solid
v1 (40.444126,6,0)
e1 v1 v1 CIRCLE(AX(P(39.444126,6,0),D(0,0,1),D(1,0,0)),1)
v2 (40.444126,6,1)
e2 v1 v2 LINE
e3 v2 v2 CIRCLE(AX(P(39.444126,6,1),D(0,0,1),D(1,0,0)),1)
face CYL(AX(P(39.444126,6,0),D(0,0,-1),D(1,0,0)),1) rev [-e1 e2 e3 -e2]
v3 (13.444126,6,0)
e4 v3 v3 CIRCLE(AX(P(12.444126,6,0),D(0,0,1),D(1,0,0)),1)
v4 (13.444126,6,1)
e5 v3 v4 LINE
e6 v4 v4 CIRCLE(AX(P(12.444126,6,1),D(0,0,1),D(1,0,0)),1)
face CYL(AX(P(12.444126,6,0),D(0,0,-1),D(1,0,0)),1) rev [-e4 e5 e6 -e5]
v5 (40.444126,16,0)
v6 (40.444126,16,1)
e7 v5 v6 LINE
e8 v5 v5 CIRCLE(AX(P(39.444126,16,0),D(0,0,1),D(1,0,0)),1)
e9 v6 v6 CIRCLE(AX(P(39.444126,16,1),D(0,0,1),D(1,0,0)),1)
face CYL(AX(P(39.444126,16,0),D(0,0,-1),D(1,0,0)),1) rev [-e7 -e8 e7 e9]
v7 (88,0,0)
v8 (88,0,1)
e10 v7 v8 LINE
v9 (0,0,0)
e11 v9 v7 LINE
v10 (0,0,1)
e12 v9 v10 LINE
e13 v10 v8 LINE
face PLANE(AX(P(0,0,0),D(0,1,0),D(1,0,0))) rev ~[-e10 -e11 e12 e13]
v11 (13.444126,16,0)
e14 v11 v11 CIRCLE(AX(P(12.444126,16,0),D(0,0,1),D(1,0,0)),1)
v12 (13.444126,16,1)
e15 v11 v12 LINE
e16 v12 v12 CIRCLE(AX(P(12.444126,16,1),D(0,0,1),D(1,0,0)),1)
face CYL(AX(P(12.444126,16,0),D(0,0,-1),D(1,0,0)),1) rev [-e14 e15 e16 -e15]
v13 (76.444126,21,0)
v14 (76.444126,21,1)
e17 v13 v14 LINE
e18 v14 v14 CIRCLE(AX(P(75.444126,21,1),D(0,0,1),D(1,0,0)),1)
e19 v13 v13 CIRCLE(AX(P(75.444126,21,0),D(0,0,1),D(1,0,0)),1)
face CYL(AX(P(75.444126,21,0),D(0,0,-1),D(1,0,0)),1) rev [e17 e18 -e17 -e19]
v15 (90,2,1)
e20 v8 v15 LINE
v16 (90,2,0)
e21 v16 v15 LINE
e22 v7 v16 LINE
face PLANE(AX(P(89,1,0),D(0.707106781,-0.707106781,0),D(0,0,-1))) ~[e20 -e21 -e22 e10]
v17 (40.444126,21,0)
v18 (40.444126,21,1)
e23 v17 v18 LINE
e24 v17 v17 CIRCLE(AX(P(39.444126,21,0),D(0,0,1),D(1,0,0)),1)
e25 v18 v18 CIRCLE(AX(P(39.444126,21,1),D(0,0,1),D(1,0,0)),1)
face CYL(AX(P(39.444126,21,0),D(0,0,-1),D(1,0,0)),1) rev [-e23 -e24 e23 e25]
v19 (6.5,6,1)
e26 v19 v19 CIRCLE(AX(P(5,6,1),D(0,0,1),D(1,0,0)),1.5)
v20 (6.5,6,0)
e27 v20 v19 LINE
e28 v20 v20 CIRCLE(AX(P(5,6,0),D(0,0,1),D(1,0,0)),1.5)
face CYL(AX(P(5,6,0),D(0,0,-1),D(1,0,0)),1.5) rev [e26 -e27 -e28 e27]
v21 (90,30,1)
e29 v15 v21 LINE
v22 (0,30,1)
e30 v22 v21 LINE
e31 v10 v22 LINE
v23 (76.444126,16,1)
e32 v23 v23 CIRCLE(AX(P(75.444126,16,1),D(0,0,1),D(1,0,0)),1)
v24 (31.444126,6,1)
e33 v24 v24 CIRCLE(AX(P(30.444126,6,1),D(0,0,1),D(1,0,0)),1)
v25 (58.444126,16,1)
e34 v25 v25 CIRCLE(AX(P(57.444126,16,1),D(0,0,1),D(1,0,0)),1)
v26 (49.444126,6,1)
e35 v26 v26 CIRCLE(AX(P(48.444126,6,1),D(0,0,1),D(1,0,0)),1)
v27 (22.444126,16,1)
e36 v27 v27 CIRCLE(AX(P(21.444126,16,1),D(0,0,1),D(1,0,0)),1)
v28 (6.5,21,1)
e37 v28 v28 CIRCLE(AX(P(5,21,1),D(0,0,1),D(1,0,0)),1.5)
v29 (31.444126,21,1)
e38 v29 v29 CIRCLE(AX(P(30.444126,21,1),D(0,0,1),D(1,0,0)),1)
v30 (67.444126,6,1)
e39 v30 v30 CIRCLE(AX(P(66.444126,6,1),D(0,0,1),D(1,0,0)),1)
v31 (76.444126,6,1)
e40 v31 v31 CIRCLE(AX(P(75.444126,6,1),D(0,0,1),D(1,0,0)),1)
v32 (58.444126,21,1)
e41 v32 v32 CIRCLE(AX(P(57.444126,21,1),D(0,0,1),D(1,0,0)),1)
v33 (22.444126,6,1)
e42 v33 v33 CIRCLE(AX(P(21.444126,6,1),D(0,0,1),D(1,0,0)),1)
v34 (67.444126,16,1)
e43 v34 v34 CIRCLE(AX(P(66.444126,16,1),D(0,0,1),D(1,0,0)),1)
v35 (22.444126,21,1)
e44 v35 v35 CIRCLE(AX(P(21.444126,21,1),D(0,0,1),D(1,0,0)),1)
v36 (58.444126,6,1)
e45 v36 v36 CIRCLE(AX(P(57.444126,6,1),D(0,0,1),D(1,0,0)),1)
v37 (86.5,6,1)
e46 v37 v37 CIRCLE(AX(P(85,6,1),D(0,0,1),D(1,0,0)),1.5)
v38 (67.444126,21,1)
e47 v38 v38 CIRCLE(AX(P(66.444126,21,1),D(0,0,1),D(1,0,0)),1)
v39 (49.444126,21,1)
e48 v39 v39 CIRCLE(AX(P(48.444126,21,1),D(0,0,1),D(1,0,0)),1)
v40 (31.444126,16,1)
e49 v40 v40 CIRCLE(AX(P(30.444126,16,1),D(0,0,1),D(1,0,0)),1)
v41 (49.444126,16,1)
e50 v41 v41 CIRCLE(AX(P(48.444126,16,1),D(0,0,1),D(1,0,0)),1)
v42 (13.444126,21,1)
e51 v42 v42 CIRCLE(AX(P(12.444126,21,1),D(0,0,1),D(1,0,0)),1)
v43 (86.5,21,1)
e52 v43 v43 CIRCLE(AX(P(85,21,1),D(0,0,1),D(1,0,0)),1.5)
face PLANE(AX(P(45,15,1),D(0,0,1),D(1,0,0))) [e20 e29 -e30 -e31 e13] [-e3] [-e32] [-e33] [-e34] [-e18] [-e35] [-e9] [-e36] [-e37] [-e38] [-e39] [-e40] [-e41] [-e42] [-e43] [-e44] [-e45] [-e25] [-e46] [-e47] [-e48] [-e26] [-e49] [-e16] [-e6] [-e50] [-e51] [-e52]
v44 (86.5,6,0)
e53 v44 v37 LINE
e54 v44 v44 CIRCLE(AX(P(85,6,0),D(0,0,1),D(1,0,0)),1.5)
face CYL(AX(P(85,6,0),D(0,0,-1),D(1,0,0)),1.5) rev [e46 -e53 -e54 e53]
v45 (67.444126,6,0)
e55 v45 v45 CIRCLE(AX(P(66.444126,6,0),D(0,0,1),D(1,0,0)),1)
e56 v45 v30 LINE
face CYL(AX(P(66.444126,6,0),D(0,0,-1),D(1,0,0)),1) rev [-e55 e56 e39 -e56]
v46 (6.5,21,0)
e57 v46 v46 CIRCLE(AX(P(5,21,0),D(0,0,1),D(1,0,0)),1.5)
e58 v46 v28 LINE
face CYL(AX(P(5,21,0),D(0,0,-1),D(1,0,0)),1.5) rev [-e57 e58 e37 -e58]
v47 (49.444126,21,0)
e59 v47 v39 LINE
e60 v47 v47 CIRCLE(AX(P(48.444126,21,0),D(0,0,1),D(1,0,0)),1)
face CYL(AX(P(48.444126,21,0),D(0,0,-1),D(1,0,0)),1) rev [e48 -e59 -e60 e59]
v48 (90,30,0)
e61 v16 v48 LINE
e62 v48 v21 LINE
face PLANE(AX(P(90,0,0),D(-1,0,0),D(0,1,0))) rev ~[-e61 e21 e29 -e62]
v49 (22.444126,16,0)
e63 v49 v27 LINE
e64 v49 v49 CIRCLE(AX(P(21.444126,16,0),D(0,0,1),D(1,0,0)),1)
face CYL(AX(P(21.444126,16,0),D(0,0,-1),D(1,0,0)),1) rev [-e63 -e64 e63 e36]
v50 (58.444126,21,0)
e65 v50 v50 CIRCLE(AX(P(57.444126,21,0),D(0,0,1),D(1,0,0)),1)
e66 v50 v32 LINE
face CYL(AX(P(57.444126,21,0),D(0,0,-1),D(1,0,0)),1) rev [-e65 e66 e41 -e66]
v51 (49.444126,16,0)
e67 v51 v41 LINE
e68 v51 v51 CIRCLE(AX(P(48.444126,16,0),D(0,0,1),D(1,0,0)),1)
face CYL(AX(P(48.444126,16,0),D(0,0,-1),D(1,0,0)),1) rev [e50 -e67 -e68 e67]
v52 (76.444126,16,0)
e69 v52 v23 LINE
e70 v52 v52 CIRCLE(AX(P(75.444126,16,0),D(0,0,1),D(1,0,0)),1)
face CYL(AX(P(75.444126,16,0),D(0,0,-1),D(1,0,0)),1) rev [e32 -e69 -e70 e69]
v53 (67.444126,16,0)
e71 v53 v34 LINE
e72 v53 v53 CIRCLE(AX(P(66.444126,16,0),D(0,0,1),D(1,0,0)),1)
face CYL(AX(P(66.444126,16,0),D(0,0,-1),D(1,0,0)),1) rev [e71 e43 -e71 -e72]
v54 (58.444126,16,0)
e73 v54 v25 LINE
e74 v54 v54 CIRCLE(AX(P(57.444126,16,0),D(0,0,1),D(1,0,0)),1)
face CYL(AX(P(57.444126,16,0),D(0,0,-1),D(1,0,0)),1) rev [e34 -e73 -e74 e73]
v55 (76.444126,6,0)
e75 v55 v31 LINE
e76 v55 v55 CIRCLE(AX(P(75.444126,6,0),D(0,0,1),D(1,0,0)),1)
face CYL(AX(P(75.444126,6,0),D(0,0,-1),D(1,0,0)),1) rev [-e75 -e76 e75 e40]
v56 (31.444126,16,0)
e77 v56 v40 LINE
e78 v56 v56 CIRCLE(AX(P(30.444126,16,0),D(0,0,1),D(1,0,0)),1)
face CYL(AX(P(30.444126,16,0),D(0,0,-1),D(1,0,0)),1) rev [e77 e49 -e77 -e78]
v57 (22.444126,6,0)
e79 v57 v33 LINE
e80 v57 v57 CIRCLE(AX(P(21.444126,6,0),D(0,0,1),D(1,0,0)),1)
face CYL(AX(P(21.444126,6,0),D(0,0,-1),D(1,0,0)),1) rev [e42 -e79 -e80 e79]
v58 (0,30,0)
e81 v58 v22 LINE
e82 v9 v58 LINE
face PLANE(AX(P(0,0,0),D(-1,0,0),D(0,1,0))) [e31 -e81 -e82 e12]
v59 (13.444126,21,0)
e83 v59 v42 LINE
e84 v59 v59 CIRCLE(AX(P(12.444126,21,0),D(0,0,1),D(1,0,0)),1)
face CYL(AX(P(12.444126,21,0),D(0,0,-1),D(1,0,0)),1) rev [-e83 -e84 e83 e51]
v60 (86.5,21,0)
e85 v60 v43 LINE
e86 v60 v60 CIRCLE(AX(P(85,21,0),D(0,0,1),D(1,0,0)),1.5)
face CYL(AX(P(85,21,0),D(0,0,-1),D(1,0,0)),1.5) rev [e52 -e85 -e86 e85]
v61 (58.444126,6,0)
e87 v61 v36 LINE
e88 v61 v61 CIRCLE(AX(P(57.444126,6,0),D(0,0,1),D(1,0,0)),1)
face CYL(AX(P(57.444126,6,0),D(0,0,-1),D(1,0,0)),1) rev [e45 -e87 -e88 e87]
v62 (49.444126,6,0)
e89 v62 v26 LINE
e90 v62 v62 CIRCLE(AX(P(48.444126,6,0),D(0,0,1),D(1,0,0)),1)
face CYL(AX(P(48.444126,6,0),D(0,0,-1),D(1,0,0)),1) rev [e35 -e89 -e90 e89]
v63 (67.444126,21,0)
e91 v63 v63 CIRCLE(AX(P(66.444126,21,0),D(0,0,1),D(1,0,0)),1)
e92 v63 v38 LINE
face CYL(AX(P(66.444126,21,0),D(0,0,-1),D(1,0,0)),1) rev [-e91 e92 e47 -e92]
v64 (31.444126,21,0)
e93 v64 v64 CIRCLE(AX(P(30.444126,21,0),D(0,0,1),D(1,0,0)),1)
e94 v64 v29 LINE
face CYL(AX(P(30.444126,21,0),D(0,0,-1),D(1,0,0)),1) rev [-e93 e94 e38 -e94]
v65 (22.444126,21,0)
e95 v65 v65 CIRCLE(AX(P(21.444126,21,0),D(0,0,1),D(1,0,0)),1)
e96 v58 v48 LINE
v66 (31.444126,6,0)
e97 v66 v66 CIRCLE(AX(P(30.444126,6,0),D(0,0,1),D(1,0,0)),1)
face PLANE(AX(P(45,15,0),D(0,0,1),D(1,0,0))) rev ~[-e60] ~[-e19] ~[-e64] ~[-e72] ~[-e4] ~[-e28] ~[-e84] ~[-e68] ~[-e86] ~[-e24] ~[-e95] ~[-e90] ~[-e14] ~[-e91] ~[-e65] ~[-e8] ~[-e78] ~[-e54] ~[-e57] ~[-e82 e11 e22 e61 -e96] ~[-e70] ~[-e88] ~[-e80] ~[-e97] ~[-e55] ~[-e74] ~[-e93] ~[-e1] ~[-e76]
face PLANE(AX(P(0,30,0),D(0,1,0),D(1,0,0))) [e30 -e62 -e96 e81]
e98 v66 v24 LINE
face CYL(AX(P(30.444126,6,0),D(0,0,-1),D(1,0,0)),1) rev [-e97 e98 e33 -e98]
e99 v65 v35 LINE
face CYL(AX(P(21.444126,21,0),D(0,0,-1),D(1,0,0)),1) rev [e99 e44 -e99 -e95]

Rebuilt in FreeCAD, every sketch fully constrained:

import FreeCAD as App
import Part
import Sketcher

V = App.Vector
Q = App.Units.Quantity


def edges_at(feature, points):
    """Names of the edges that pass closest to the given points."""
    edges = feature.Shape.Edges
    near = lambda p: min(range(len(edges)), key=lambda i: edges[i].distToShape(Part.Vertex(*p))[0])
    return sorted({f"Edge{near(p) + 1}" for p in points})

doc = App.newDocument("Part")
body = doc.addObject("PartDesign::Body", "Body")

sketch1 = body.newObject("Sketcher::SketchObject", "Sketch")
sketch1.AttachmentSupport = (doc.getObject("XY_Plane"), [""])
sketch1.MapMode = "FlatFace"
sketch1.addGeometry(Part.LineSegment(V(0, 30, 0), V(0, 0, 0)), False)
sketch1.addGeometry(Part.LineSegment(V(0, 0, 0), V(90, 0, 0)), False)
sketch1.addGeometry(Part.LineSegment(V(90, 0, 0), V(90, 30, 0)), False)
sketch1.addGeometry(Part.LineSegment(V(90, 30, 0), V(0, 30, 0)), False)
sketch1.addConstraint(Sketcher.Constraint("Coincident", 0, 2, 1, 1))
sketch1.addConstraint(Sketcher.Constraint("Coincident", 1, 2, 2, 1))
sketch1.addConstraint(Sketcher.Constraint("Coincident", 2, 2, 3, 1))
sketch1.addConstraint(Sketcher.Constraint("Coincident", 3, 2, 0, 1))
sketch1.addConstraint(Sketcher.Constraint("Vertical", 0))
sketch1.addConstraint(Sketcher.Constraint("Horizontal", 1))
sketch1.addConstraint(Sketcher.Constraint("Vertical", 2))
sketch1.addConstraint(Sketcher.Constraint("Horizontal", 3))
sketch1.addConstraint(Sketcher.Constraint("Coincident", 0, 2, -1, 1))
sketch1.addConstraint(Sketcher.Constraint("DistanceX", 1, 1, 1, 2, Q("90 mm")))
sketch1.addConstraint(Sketcher.Constraint("DistanceY", 0, 2, 0, 1, Q("30 mm")))
pad1 = body.newObject("PartDesign::Pad", "Pad")
pad1.Profile = sketch1
pad1.Length = 1

sketch2 = body.newObject("Sketcher::SketchObject", "Sketch001")
sketch2.AttachmentSupport = (doc.getObject("XY_Plane"), [""])
sketch2.MapMode = "FlatFace"
sketch2.addGeometry(Part.Circle(V(12.444126, 6, 0), V(0, 0, 1), 1), False)
sketch2.addGeometry(Part.Circle(V(12.444126, 21, 0), V(0, 0, 1), 1), False)
sketch2.addGeometry(Part.Circle(V(12.444126, 16, 0), V(0, 0, 1), 1), False)
sketch2.addGeometry(Part.Circle(V(21.444126, 21, 0), V(0, 0, 1), 1), False)
sketch2.addGeometry(Part.Circle(V(21.444126, 16, 0), V(0, 0, 1), 1), False)
sketch2.addGeometry(Part.Circle(V(21.444126, 6, 0), V(0, 0, 1), 1), False)
sketch2.addGeometry(Part.Circle(V(30.444126, 21, 0), V(0, 0, 1), 1), False)
sketch2.addGeometry(Part.Circle(V(30.444126, 16, 0), V(0, 0, 1), 1), False)
sketch2.addGeometry(Part.Circle(V(30.444126, 6, 0), V(0, 0, 1), 1), False)
sketch2.addGeometry(Part.Circle(V(39.444126, 21, 0), V(0, 0, 1), 1), False)
sketch2.addGeometry(Part.Circle(V(39.444126, 16, 0), V(0, 0, 1), 1), False)
sketch2.addGeometry(Part.Circle(V(39.444126, 6, 0), V(0, 0, 1), 1), False)
sketch2.addGeometry(Part.Circle(V(48.444126, 21, 0), V(0, 0, 1), 1), False)
sketch2.addGeometry(Part.Circle(V(48.444126, 16, 0), V(0, 0, 1), 1), False)
sketch2.addGeometry(Part.Circle(V(48.444126, 6, 0), V(0, 0, 1), 1), False)
sketch2.addGeometry(Part.Circle(V(57.444126, 21, 0), V(0, 0, 1), 1), False)
sketch2.addGeometry(Part.Circle(V(57.444126, 16, 0), V(0, 0, 1), 1), False)
sketch2.addGeometry(Part.Circle(V(57.444126, 6, 0), V(0, 0, 1), 1), False)
sketch2.addGeometry(Part.Circle(V(66.444126, 21, 0), V(0, 0, 1), 1), False)
sketch2.addGeometry(Part.Circle(V(66.444126, 16, 0), V(0, 0, 1), 1), False)
sketch2.addGeometry(Part.Circle(V(66.444126, 6, 0), V(0, 0, 1), 1), False)
sketch2.addGeometry(Part.Circle(V(75.444126, 21, 0), V(0, 0, 1), 1), False)
sketch2.addGeometry(Part.Circle(V(75.444126, 16, 0), V(0, 0, 1), 1), False)
sketch2.addGeometry(Part.Circle(V(75.444126, 6, 0), V(0, 0, 1), 1), False)
sketch2.addConstraint(Sketcher.Constraint("Equal", 0, 1))
sketch2.addConstraint(Sketcher.Constraint("Equal", 1, 2))
sketch2.addConstraint(Sketcher.Constraint("Equal", 2, 3))
sketch2.addConstraint(Sketcher.Constraint("Equal", 3, 4))
sketch2.addConstraint(Sketcher.Constraint("Equal", 4, 5))
sketch2.addConstraint(Sketcher.Constraint("Equal", 5, 6))
sketch2.addConstraint(Sketcher.Constraint("Equal", 6, 7))
sketch2.addConstraint(Sketcher.Constraint("Equal", 7, 8))
sketch2.addConstraint(Sketcher.Constraint("Equal", 8, 9))
sketch2.addConstraint(Sketcher.Constraint("Equal", 9, 10))
sketch2.addConstraint(Sketcher.Constraint("Equal", 10, 11))
sketch2.addConstraint(Sketcher.Constraint("Equal", 11, 12))
sketch2.addConstraint(Sketcher.Constraint("Equal", 12, 13))
sketch2.addConstraint(Sketcher.Constraint("Equal", 13, 14))
sketch2.addConstraint(Sketcher.Constraint("Equal", 14, 15))
sketch2.addConstraint(Sketcher.Constraint("Equal", 15, 16))
sketch2.addConstraint(Sketcher.Constraint("Equal", 16, 17))
sketch2.addConstraint(Sketcher.Constraint("Equal", 17, 18))
sketch2.addConstraint(Sketcher.Constraint("Equal", 18, 19))
sketch2.addConstraint(Sketcher.Constraint("Equal", 19, 20))
sketch2.addConstraint(Sketcher.Constraint("Equal", 20, 21))
sketch2.addConstraint(Sketcher.Constraint("Equal", 21, 22))
sketch2.addConstraint(Sketcher.Constraint("Equal", 22, 23))
sketch2.addConstraint(Sketcher.Constraint("Horizontal", 1, 3, 3, 3))
sketch2.addConstraint(Sketcher.Constraint("Horizontal", 2, 3, 4, 3))
sketch2.addConstraint(Sketcher.Constraint("Horizontal", 0, 3, 5, 3))
sketch2.addConstraint(Sketcher.Constraint("Horizontal", 3, 3, 6, 3))
sketch2.addConstraint(Sketcher.Constraint("Horizontal", 4, 3, 7, 3))
sketch2.addConstraint(Sketcher.Constraint("Horizontal", 5, 3, 8, 3))
sketch2.addConstraint(Sketcher.Constraint("Horizontal", 6, 3, 9, 3))
sketch2.addConstraint(Sketcher.Constraint("Horizontal", 7, 3, 10, 3))
sketch2.addConstraint(Sketcher.Constraint("Horizontal", 8, 3, 11, 3))
sketch2.addConstraint(Sketcher.Constraint("Horizontal", 9, 3, 12, 3))
sketch2.addConstraint(Sketcher.Constraint("Horizontal", 10, 3, 13, 3))
sketch2.addConstraint(Sketcher.Constraint("Horizontal", 11, 3, 14, 3))
sketch2.addConstraint(Sketcher.Constraint("Horizontal", 12, 3, 15, 3))
sketch2.addConstraint(Sketcher.Constraint("Horizontal", 13, 3, 16, 3))
sketch2.addConstraint(Sketcher.Constraint("Horizontal", 14, 3, 17, 3))
sketch2.addConstraint(Sketcher.Constraint("Horizontal", 15, 3, 18, 3))
sketch2.addConstraint(Sketcher.Constraint("Horizontal", 16, 3, 19, 3))
sketch2.addConstraint(Sketcher.Constraint("Horizontal", 17, 3, 20, 3))
sketch2.addConstraint(Sketcher.Constraint("Horizontal", 18, 3, 21, 3))
sketch2.addConstraint(Sketcher.Constraint("Horizontal", 19, 3, 22, 3))
sketch2.addConstraint(Sketcher.Constraint("Horizontal", 20, 3, 23, 3))
sketch2.addConstraint(Sketcher.Constraint("Vertical", 0, 3, 1, 3))
sketch2.addConstraint(Sketcher.Constraint("Vertical", 1, 3, 2, 3))
sketch2.addConstraint(Sketcher.Constraint("Vertical", 3, 3, 4, 3))
sketch2.addConstraint(Sketcher.Constraint("Vertical", 4, 3, 5, 3))
sketch2.addConstraint(Sketcher.Constraint("Vertical", 6, 3, 7, 3))
sketch2.addConstraint(Sketcher.Constraint("Vertical", 7, 3, 8, 3))
sketch2.addConstraint(Sketcher.Constraint("Vertical", 9, 3, 10, 3))
sketch2.addConstraint(Sketcher.Constraint("Vertical", 10, 3, 11, 3))
sketch2.addConstraint(Sketcher.Constraint("Vertical", 12, 3, 13, 3))
sketch2.addConstraint(Sketcher.Constraint("Vertical", 13, 3, 14, 3))
sketch2.addConstraint(Sketcher.Constraint("Vertical", 15, 3, 16, 3))
sketch2.addConstraint(Sketcher.Constraint("Vertical", 16, 3, 17, 3))
sketch2.addConstraint(Sketcher.Constraint("Vertical", 18, 3, 19, 3))
sketch2.addConstraint(Sketcher.Constraint("Vertical", 19, 3, 20, 3))
sketch2.addConstraint(Sketcher.Constraint("Vertical", 21, 3, 22, 3))
sketch2.addConstraint(Sketcher.Constraint("Vertical", 22, 3, 23, 3))
sketch2.addConstraint(Sketcher.Constraint("Diameter", 0, Q("2 mm")))
sketch2.addConstraint(Sketcher.Constraint("DistanceY", -1, 1, 0, 3, Q("6 mm")))
sketch2.addConstraint(Sketcher.Constraint("DistanceY", -1, 1, 1, 3, Q("21 mm")))
sketch2.addConstraint(Sketcher.Constraint("DistanceY", -1, 1, 2, 3, Q("16 mm")))
sketch2.addConstraint(Sketcher.Constraint("DistanceX", 1, 3, 3, 3, Q("9 mm")))
sketch2.addConstraint(Sketcher.Constraint("DistanceX", 3, 3, 6, 3, Q("9 mm")))
sketch2.addConstraint(Sketcher.Constraint("DistanceX", 6, 3, 9, 3, Q("9 mm")))
sketch2.addConstraint(Sketcher.Constraint("DistanceX", 9, 3, 12, 3, Q("9 mm")))
sketch2.addConstraint(Sketcher.Constraint("DistanceX", 12, 3, 15, 3, Q("9 mm")))
sketch2.addConstraint(Sketcher.Constraint("DistanceX", 15, 3, 18, 3, Q("9 mm")))
sketch2.addConstraint(Sketcher.Constraint("DistanceX", 18, 3, 21, 3, Q("9 mm")))
sketch2.addConstraint(Sketcher.Constraint("DistanceX", -1, 1, 0, 3, Q("12.444126 mm")))
pocket1 = body.newObject("PartDesign::Pocket", "Pocket")
pocket1.Profile = sketch2
pocket1.Type = "ThroughAll"
pocket1.Reversed = True
doc.recompute()

chamfer = body.newObject("PartDesign::Chamfer", "Chamfer")
chamfer.Base = (pocket1, edges_at(pocket1, [(90, 0, 0.5)]))
chamfer.Size = 2

sketch3 = body.newObject("Sketcher::SketchObject", "Sketch002")
sketch3.AttachmentSupport = (doc.getObject("XY_Plane"), [""])
sketch3.MapMode = "FlatFace"
sketch3.addGeometry(Part.Circle(V(5, 6, 0), V(0, 0, 1), 1.5), False)
sketch3.addGeometry(Part.Circle(V(5, 21, 0), V(0, 0, 1), 1.5), False)
sketch3.addGeometry(Part.Circle(V(85, 21, 0), V(0, 0, 1), 1.5), False)
sketch3.addGeometry(Part.Circle(V(85, 6, 0), V(0, 0, 1), 1.5), False)
sketch3.addConstraint(Sketcher.Constraint("Equal", 0, 1))
sketch3.addConstraint(Sketcher.Constraint("Equal", 1, 2))
sketch3.addConstraint(Sketcher.Constraint("Equal", 2, 3))
sketch3.addConstraint(Sketcher.Constraint("Horizontal", 1, 3, 2, 3))
sketch3.addConstraint(Sketcher.Constraint("Horizontal", 0, 3, 3, 3))
sketch3.addConstraint(Sketcher.Constraint("Vertical", 0, 3, 1, 3))
sketch3.addConstraint(Sketcher.Constraint("Vertical", 2, 3, 3, 3))
sketch3.addConstraint(Sketcher.Constraint("Diameter", 0, Q("3 mm")))
sketch3.addConstraint(Sketcher.Constraint("DistanceX", -1, 1, 0, 3, Q("5 mm")))
sketch3.addConstraint(Sketcher.Constraint("DistanceY", -1, 1, 0, 3, Q("6 mm")))
sketch3.addConstraint(Sketcher.Constraint("DistanceY", -1, 1, 1, 3, Q("21 mm")))
sketch3.addConstraint(Sketcher.Constraint("DistanceX", -1, 1, 2, 3, Q("85 mm")))
pocket2 = body.newObject("PartDesign::Pocket", "Pocket001")
pocket2.Profile = sketch3
pocket2.Type = "ThroughAll"
pocket2.Reversed = True

doc.recompute()
